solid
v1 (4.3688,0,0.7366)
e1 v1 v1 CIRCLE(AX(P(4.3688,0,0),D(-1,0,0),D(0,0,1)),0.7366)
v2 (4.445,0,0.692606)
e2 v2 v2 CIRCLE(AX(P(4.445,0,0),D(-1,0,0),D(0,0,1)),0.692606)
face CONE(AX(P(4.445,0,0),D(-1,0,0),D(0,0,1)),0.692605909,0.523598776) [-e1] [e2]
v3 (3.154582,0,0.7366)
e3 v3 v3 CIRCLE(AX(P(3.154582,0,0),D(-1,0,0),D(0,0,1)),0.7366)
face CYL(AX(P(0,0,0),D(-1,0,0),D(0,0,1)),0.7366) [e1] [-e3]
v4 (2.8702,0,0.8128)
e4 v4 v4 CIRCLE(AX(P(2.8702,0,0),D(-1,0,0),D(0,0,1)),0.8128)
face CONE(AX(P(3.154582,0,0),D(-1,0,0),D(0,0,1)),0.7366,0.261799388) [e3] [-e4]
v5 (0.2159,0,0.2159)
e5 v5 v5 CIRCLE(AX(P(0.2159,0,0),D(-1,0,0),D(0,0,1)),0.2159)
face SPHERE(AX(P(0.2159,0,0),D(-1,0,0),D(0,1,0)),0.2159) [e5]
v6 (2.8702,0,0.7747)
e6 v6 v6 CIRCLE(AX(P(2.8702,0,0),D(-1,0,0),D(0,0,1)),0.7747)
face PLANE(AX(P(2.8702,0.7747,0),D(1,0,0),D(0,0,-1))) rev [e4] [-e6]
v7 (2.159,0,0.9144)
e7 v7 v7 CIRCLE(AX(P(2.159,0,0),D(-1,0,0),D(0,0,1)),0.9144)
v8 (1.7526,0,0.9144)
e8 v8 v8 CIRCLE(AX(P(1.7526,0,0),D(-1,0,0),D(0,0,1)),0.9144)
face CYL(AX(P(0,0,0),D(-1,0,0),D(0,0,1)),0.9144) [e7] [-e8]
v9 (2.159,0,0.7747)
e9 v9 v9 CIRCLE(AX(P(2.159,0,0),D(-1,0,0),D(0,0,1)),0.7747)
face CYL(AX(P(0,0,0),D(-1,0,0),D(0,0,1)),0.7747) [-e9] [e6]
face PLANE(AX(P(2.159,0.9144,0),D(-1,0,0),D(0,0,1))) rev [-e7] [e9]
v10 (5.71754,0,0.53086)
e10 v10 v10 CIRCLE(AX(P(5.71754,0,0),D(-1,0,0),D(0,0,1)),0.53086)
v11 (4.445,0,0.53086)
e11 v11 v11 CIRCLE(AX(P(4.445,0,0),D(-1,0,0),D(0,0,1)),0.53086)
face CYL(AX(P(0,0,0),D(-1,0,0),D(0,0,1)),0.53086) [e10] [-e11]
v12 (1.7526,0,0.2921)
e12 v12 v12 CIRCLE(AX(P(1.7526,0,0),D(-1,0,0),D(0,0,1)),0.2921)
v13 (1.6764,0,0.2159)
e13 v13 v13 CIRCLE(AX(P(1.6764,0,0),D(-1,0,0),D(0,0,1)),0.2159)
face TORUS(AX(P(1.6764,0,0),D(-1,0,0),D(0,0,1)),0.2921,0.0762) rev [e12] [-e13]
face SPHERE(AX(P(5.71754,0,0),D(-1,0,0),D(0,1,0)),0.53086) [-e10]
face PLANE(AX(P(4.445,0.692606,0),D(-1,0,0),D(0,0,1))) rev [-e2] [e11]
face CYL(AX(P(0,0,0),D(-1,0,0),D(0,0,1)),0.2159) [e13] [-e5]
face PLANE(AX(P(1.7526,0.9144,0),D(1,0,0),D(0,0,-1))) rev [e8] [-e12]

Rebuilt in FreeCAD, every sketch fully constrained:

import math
import FreeCAD as App
import Part
import Sketcher

V = App.Vector
Q = App.Units.Quantity

doc = App.newDocument("Part")
body = doc.addObject("PartDesign::Body", "Body")

sketch1 = body.newObject("Sketcher::SketchObject", "Sketch")
sketch1.AttachmentSupport = (doc.getObject("XY_Plane"), [""])
sketch1.MapMode = "FlatFace"
sketch1.addGeometry(Part.LineSegment(V(0, 0, 0), V(6.248, 0, 0)), False)
sketch1.addGeometry(Part.ArcOfCircle(Part.Circle(V(5.718, 0, 0), V(0, 0, 1), 0.531), math.radians(0), math.radians(90)), False)
sketch1.addGeometry(Part.LineSegment(V(5.718, 0.531, 0), V(4.445, 0.531, 0)), False)
sketch1.addGeometry(Part.LineSegment(V(4.445, 0.531, 0), V(4.445, 0.693, 0)), False)
sketch1.addGeometry(Part.LineSegment(V(4.445, 0.693, 0), V(4.369, 0.737, 0)), False)
sketch1.addGeometry(Part.LineSegment(V(4.369, 0.737, 0), V(3.155, 0.737, 0)), False)
sketch1.addGeometry(Part.LineSegment(V(3.155, 0.737, 0), V(2.87, 0.813, 0)), False)
sketch1.addGeometry(Part.LineSegment(V(2.87, 0.813, 0), V(2.87, 0.775, 0)), False)
sketch1.addGeometry(Part.LineSegment(V(2.87, 0.775, 0), V(2.159, 0.775, 0)), False)
sketch1.addGeometry(Part.LineSegment(V(2.159, 0.775, 0), V(2.159, 0.914, 0)), False)
sketch1.addGeometry(Part.LineSegment(V(2.159, 0.914, 0), V(1.753, 0.914, 0)), False)
sketch1.addGeometry(Part.LineSegment(V(1.753, 0.914, 0), V(1.753, 0.292, 0)), False)
sketch1.addGeometry(Part.ArcOfCircle(Part.Circle(V(1.676, 0.292, 0), V(0, 0, 1), 0.076), math.radians(-90), math.radians(0)), False)
sketch1.addGeometry(Part.LineSegment(V(1.676, 0.216, 0), V(0.216, 0.216, 0)), False)
sketch1.addGeometry(Part.ArcOfCircle(Part.Circle(V(0.216, 0, 0), V(0, 0, 1), 0.216), math.radians(90), math.radians(180)), False)
sketch1.addConstraint(Sketcher.Constraint("Coincident", 0, 2, 1, 1))
sketch1.addConstraint(Sketcher.Constraint("Tangent", 1, 2, 2, 1))
sketch1.addConstraint(Sketcher.Constraint("Coincident", 2, 2, 3, 1))
sketch1.addConstraint(Sketcher.Constraint("Coincident", 3, 2, 4, 1))
sketch1.addConstraint(Sketcher.Constraint("Coincident", 4, 2, 5, 1))
sketch1.addConstraint(Sketcher.Constraint("Coincident", 5, 2, 6, 1))
sketch1.addConstraint(Sketcher.Constraint("Coincident", 6, 2, 7, 1))
sketch1.addConstraint(Sketcher.Constraint("Coincident", 7, 2, 8, 1))
sketch1.addConstraint(Sketcher.Constraint("Coincident", 8, 2, 9, 1))
sketch1.addConstraint(Sketcher.Constraint("Coincident", 9, 2, 10, 1))
sketch1.addConstraint(Sketcher.Constraint("Coincident", 10, 2, 11, 1))
sketch1.addConstraint(Sketcher.Constraint("Tangent", 11, 2, 12, 2))
sketch1.addConstraint(Sketcher.Constraint("Tangent", 12, 1, 13, 1))
sketch1.addConstraint(Sketcher.Constraint("Tangent", 13, 2, 14, 1))
sketch1.addConstraint(Sketcher.Constraint("Coincident", 14, 2, 0, 1))
sketch1.addConstraint(Sketcher.Constraint("Horizontal", 0))
sketch1.addConstraint(Sketcher.Constraint("Horizontal", 2))
sketch1.addConstraint(Sketcher.Constraint("Vertical", 3))
sketch1.addConstraint(Sketcher.Constraint("Horizontal", 5))
sketch1.addConstraint(Sketcher.Constraint("Vertical", 7))
sketch1.addConstraint(Sketcher.Constraint("Horizontal", 8))
sketch1.addConstraint(Sketcher.Constraint("Vertical", 9))
sketch1.addConstraint(Sketcher.Constraint("Horizontal", 10))
sketch1.addConstraint(Sketcher.Constraint("Vertical", 11))
sketch1.addConstraint(Sketcher.Constraint("Horizontal", 13))
sketch1.addConstraint(Sketcher.Constraint("Coincident", 14, 2, -1, 1))
sketch1.addConstraint(Sketcher.Constraint("PointOnObject", 1, 3, -1))
sketch1.addConstraint(Sketcher.Constraint("PointOnObject", 14, 3, -1))
sketch1.addConstraint(Sketcher.Constraint("Angle", 4, Q("150 deg")))
sketch1.addConstraint(Sketcher.Constraint("Angle", 6, Q("165 deg")))
sketch1.addConstraint(Sketcher.Constraint("Radius", 12, Q("0.003 in")))
sketch1.addConstraint(Sketcher.Constraint("Radius", 1, Q("0.0209 in")))
sketch1.addConstraint(Sketcher.Constraint("Radius", 14, Q("0.0085 in")))
sketch1.addConstraint(Sketcher.Constraint("DistanceX", 0, 1, 0, 2, Q("0.246 in")))
sketch1.addConstraint(Sketcher.Constraint("DistanceX", 8, 2, 8, 1, Q("0.028 in")))
sketch1.addConstraint(Sketcher.Constraint("DistanceX", 10, 2, 10, 1, Q("0.016 in")))
sketch1.addConstraint(Sketcher.Constraint("DistanceX", 12, 3, 0, 2, Q("0.18 in")))
sketch1.addConstraint(Sketcher.Constraint("DistanceX", 2, 2, 2, 1, Q("0.0501 in")))
sketch1.addConstraint(Sketcher.Constraint("DistanceY", 7, 2, 7, 1, Q("0.0015 in")))
sketch1.addConstraint(Sketcher.Constraint("DistanceY", 9, 1, 9, 2, Q("0.0055 in")))
sketch1.addConstraint(Sketcher.Constraint("DistanceY", 11, 2, 11, 1, Q("0.0245 in")))
sketch1.addConstraint(Sketcher.Constraint("DistanceX", -1, 1, 4, 2, Q("0.172 in")))
sketch1.addConstraint(Sketcher.Constraint("DistanceY", -1, 1, 4, 2, Q("0.029 in")))
revolution = body.newObject("PartDesign::Revolution", "Revolution")
revolution.Profile = sketch1
revolution.ReferenceAxis = (sketch1, ["H_Axis"])
revolution.Angle = 360

doc.recompute()
